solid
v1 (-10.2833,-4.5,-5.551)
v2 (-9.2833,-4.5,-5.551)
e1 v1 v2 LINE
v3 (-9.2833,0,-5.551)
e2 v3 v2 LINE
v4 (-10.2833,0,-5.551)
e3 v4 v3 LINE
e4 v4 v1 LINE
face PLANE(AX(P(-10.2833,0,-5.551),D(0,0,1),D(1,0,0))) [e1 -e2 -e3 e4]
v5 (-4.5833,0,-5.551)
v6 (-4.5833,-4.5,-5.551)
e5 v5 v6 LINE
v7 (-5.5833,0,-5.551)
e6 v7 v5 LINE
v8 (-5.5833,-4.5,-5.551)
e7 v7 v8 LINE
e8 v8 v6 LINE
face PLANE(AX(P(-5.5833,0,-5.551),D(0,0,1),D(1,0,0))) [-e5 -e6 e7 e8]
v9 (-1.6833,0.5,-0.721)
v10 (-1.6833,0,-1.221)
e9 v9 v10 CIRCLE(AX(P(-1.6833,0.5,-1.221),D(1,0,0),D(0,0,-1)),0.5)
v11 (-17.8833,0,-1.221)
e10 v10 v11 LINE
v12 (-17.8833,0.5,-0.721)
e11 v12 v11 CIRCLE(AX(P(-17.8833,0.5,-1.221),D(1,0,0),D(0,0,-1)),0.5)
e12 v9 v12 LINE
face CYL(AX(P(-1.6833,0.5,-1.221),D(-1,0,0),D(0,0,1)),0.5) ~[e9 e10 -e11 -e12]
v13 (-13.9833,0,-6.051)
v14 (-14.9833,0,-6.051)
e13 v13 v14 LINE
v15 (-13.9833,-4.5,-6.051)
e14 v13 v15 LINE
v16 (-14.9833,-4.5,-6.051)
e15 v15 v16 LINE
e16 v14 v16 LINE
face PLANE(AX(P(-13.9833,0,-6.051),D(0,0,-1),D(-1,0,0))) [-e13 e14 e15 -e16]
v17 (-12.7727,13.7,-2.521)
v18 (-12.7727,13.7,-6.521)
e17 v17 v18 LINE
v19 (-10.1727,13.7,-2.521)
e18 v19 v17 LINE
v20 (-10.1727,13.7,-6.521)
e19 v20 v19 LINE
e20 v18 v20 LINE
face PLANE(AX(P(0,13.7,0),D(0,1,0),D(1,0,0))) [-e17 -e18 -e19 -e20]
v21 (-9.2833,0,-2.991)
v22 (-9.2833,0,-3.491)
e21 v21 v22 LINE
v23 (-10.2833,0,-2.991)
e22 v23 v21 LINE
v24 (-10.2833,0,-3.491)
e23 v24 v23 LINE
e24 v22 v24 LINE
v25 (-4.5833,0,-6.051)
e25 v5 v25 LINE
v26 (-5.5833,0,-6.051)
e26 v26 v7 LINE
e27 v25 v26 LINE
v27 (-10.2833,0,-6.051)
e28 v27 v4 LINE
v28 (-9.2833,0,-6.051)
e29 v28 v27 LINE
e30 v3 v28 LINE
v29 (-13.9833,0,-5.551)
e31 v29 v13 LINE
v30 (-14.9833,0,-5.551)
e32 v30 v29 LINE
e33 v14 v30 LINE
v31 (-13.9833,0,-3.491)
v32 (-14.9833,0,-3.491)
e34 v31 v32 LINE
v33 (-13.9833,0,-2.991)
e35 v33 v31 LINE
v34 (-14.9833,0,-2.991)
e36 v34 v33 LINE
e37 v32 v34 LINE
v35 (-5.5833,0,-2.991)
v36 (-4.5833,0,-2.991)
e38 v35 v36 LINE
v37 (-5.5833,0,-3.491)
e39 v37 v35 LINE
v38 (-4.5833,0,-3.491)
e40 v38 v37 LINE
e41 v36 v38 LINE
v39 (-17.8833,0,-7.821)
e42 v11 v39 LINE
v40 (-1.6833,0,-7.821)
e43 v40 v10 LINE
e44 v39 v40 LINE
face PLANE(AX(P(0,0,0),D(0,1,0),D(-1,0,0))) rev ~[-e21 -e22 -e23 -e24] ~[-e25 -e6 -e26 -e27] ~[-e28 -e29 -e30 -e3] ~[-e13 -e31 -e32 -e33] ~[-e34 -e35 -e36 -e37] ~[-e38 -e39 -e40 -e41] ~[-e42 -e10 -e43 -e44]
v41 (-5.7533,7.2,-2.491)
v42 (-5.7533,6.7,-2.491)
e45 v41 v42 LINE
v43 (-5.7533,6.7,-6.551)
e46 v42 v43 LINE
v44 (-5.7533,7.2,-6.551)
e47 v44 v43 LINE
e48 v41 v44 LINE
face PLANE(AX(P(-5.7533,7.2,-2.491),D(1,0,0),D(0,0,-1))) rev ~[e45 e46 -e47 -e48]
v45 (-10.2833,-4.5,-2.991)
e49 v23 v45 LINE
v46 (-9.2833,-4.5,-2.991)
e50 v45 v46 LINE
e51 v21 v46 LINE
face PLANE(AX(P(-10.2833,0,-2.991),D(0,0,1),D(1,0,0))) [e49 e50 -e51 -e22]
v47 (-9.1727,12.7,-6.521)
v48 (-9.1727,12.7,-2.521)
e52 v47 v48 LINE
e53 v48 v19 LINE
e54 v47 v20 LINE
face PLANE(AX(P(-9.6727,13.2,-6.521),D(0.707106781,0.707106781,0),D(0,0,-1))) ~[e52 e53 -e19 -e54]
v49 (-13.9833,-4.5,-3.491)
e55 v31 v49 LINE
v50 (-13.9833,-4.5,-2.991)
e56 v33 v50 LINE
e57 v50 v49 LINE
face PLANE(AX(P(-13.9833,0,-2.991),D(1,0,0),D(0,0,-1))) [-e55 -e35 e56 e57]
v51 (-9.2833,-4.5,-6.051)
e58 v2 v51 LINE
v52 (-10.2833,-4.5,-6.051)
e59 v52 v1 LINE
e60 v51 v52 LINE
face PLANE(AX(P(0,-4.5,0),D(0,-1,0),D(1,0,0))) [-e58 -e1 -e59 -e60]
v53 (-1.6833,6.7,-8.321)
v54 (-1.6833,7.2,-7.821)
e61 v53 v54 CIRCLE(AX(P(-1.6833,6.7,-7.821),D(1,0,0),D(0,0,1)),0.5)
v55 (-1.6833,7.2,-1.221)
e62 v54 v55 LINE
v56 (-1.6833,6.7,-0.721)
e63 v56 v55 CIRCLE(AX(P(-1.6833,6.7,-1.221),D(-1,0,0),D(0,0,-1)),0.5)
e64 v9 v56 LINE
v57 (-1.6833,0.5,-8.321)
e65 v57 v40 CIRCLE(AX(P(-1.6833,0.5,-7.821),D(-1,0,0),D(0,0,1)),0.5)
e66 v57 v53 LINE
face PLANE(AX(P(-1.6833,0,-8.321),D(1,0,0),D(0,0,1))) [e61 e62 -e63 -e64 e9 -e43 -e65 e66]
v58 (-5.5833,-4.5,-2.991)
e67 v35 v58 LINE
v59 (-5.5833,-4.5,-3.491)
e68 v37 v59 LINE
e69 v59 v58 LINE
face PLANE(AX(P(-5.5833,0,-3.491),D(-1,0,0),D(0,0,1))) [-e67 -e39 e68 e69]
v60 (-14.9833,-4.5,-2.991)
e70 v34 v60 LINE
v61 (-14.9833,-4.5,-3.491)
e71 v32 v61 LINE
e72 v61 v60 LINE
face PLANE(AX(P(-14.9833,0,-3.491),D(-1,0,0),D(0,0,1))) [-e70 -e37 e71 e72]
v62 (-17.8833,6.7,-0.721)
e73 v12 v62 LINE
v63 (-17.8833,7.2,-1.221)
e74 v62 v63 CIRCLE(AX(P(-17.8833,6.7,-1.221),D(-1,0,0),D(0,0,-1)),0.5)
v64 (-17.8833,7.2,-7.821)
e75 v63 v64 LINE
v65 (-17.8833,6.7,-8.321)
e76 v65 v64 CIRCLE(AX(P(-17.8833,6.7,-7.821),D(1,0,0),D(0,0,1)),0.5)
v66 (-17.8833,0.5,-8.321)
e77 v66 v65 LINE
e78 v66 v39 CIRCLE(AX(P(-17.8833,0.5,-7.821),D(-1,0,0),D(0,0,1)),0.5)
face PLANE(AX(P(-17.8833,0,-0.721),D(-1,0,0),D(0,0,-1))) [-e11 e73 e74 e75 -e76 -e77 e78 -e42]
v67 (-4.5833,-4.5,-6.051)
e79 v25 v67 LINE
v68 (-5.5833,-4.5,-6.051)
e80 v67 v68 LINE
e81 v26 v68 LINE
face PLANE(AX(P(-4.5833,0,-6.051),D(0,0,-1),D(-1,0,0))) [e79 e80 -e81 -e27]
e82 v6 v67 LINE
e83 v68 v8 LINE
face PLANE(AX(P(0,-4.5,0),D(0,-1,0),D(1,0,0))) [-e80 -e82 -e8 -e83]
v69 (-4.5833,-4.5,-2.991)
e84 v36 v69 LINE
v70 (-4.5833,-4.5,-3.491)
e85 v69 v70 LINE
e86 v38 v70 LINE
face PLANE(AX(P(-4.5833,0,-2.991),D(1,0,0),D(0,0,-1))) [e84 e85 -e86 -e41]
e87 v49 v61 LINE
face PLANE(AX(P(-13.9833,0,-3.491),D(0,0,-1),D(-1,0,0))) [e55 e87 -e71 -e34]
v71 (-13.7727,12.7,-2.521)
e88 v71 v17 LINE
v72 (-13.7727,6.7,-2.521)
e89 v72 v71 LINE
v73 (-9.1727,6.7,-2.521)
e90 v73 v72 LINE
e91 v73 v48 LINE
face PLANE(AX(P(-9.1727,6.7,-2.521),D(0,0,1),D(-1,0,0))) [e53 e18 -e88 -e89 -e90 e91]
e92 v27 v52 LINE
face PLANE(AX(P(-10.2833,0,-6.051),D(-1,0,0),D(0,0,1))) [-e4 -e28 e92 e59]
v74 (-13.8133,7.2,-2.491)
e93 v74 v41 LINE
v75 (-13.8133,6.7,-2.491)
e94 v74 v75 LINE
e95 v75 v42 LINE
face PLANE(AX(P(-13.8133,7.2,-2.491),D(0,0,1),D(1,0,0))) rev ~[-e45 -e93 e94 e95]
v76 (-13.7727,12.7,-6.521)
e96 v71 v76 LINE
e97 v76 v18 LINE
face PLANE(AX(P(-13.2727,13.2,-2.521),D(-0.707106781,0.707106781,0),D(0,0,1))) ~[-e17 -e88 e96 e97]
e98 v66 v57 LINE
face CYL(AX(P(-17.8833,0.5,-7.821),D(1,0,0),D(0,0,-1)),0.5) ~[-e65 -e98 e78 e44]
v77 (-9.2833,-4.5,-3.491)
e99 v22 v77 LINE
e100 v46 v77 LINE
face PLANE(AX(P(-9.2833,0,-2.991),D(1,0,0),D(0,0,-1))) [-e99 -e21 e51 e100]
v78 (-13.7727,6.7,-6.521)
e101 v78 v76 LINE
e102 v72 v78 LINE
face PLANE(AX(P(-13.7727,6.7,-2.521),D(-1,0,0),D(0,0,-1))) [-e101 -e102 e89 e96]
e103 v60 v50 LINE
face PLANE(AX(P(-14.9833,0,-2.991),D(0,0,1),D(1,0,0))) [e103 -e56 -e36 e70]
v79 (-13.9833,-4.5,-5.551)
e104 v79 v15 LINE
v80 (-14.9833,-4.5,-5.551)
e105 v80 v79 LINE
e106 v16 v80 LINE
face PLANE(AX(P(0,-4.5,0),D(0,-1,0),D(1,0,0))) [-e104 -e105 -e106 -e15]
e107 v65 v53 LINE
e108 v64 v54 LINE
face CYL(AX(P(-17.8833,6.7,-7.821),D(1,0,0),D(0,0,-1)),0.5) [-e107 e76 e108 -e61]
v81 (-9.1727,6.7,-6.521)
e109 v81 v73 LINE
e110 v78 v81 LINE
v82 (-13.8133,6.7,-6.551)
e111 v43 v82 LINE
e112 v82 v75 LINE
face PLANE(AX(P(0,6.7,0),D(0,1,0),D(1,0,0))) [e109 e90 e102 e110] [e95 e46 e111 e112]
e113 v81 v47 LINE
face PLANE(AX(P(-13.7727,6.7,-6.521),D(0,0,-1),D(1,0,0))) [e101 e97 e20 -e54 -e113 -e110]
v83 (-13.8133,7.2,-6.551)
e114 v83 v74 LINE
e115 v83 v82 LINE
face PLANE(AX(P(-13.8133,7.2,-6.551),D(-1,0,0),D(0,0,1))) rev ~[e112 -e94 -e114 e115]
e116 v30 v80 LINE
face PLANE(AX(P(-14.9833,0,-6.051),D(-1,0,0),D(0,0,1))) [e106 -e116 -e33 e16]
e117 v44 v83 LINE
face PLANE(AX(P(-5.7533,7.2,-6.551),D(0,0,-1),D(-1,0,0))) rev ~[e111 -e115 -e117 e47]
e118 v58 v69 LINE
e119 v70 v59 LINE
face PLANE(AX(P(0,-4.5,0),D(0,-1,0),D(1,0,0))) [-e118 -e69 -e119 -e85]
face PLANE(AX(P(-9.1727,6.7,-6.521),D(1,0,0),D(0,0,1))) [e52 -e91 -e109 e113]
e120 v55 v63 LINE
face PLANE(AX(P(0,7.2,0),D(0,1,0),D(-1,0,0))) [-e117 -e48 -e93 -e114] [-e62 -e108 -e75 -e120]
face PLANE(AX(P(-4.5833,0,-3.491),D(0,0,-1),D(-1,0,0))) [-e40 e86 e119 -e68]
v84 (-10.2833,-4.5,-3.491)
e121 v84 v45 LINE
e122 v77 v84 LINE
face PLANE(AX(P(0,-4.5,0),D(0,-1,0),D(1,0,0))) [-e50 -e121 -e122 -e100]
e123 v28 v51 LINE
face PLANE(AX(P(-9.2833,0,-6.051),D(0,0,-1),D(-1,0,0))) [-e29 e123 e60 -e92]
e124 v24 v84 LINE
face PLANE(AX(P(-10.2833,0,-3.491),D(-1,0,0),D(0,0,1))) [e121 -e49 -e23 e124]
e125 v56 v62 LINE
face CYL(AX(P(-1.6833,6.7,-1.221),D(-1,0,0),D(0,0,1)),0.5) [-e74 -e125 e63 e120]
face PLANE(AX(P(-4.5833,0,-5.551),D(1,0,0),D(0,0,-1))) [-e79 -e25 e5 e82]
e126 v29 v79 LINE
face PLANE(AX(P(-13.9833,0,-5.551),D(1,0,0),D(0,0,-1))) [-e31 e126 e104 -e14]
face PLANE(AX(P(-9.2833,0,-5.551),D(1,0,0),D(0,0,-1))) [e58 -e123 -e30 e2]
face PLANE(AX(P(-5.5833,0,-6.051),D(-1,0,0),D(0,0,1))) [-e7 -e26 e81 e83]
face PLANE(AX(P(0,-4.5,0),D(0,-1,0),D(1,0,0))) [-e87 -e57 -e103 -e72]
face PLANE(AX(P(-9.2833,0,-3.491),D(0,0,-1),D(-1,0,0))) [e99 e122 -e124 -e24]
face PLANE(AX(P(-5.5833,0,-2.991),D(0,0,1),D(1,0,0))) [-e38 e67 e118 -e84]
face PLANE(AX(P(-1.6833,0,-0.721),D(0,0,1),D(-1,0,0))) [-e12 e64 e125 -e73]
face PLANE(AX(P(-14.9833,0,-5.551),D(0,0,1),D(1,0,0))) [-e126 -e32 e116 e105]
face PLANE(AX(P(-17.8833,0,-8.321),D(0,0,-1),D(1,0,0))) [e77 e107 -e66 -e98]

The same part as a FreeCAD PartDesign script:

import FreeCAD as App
import Part
import Sketcher

V = App.Vector


def edges_at(feature, points):
    """Names of the edges that pass closest to the given points."""
    edges = feature.Shape.Edges
    near = lambda p: min(range(len(edges)), key=lambda i: edges[i].distToShape(Part.Vertex(*p))[0])
    return sorted({f"Edge{near(p) + 1}" for p in points})

doc = App.newDocument("Part")
body = doc.addObject("PartDesign::Body", "Body")

sketch1 = body.newObject("Sketcher::SketchObject", "Sketch")
sketch1.AttachmentSupport = (doc.getObject("XZ_Plane"), [""])
sketch1.MapMode = "FlatFace"
sketch1.addGeometry([
    Part.LineSegment(V(-1.6833, -8.321, 0), V(-17.8833, -8.321, 0)),
    Part.LineSegment(V(-17.8833, -8.321, 0), V(-17.8833, -0.721, 0)),
    Part.LineSegment(V(-17.8833, -0.721, 0), V(-1.6833, -0.721, 0)),
    Part.LineSegment(V(-1.6833, -0.721, 0), V(-1.6833, -8.321, 0)),
], False)
sketch1.addConstraint([
    Sketcher.Constraint("Coincident", 0, 2, 1, 1),
    Sketcher.Constraint("Coincident", 1, 2, 2, 1),
    Sketcher.Constraint("Coincident", 2, 2, 3, 1),
    Sketcher.Constraint("Coincident", 3, 2, 0, 1),
    Sketcher.Constraint("Horizontal", 0),
    Sketcher.Constraint("Vertical", 1),
    Sketcher.Constraint("Horizontal", 2),
    Sketcher.Constraint("Vertical", 3),
    Sketcher.Constraint("DistanceX", 0, 2, 0, 1, 16.2),
    Sketcher.Constraint("DistanceY", 1, 1, 1, 2, 7.6),
    Sketcher.Constraint("DistanceY", 0, 2, -1, 1, 8.321),
    Sketcher.Constraint("DistanceX", 0, 2, -1, 1, 17.8833),
])
pad1 = body.newObject("PartDesign::Pad", "Pad")
pad1.Profile = sketch1
pad1.Length = 7.2
pad1.Reversed = True
doc.recompute()

fillet = body.newObject("PartDesign::Fillet", "Fillet")
fillet.Base = (pad1, edges_at(pad1, [
    (-9.783, 7.2, -0.721),
    (-9.783, 7.2, -8.321),
    (-9.783, 0, -0.721),
    (-9.783, 0, -8.321),
]))
fillet.Radius = 0.5

sketch2 = body.newObject("Sketcher::SketchObject", "Sketch001")
sketch2.AttachmentSupport = (doc.getObject("XZ_Plane"), [""])
sketch2.MapMode = "FlatFace"
sketch2.AttachmentOffset = App.Placement(V(0, 0, -7.2), App.Rotation())
sketch2.addGeometry([
    Part.LineSegment(V(-13.8133, -6.551, 0), V(-13.8133, -2.491, 0)),
    Part.LineSegment(V(-13.8133, -2.491, 0), V(-5.7533, -2.491, 0)),
    Part.LineSegment(V(-5.7533, -2.491, 0), V(-5.7533, -6.551, 0)),
    Part.LineSegment(V(-5.7533, -6.551, 0), V(-13.8133, -6.551, 0)),
], False)
sketch2.addConstraint([
    Sketcher.Constraint("Coincident", 0, 2, 1, 1),
    Sketcher.Constraint("Coincident", 1, 2, 2, 1),
    Sketcher.Constraint("Coincident", 2, 2, 3, 1),
    Sketcher.Constraint("Coincident", 3, 2, 0, 1),
    Sketcher.Constraint("Vertical", 0),
    Sketcher.Constraint("Horizontal", 1),
    Sketcher.Constraint("Vertical", 2),
    Sketcher.Constraint("Horizontal", 3),
    Sketcher.Constraint("DistanceX", 1, 1, 1, 2, 8.06),
    Sketcher.Constraint("DistanceY", 0, 1, 0, 2, 4.06),
    Sketcher.Constraint("DistanceY", 0, 2, -1, 1, 2.491),
    Sketcher.Constraint("DistanceX", 0, 2, -1, 1, 13.8133),
])
pocket1 = body.newObject("PartDesign::Pocket", "Pocket")
pocket1.Profile = sketch2
pocket1.Length = 0.5
pocket1.Reversed = True

sketch3 = body.newObject("Sketcher::SketchObject", "Sketch002")
sketch3.AttachmentSupport = (doc.getObject("XZ_Plane"), [""])
sketch3.MapMode = "FlatFace"
sketch3.AttachmentOffset = App.Placement(V(0, 0, -6.7), App.Rotation())
sketch3.addGeometry([
    Part.LineSegment(V(-9.1727, -6.521, 0), V(-13.7727, -6.521, 0)),
    Part.LineSegment(V(-13.7727, -6.521, 0), V(-13.7727, -2.521, 0)),
    Part.LineSegment(V(-13.7727, -2.521, 0), V(-9.1727, -2.521, 0)),
    Part.LineSegment(V(-9.1727, -2.521, 0), V(-9.1727, -6.521, 0)),
], False)
sketch3.addConstraint([
    Sketcher.Constraint("Coincident", 0, 2, 1, 1),
    Sketcher.Constraint("Coincident", 1, 2, 2, 1),
    Sketcher.Constraint("Coincident", 2, 2, 3, 1),
    Sketcher.Constraint("Coincident", 3, 2, 0, 1),
    Sketcher.Constraint("Horizontal", 0),
    Sketcher.Constraint("Vertical", 1),
    Sketcher.Constraint("Horizontal", 2),
    Sketcher.Constraint("Vertical", 3),
    Sketcher.Constraint("DistanceY", 1, 1, 1, 2, 4.0),
    Sketcher.Constraint("DistanceX", 0, 2, 0, 1, 4.6),
    Sketcher.Constraint("DistanceY", 0, 2, -1, 1, 6.521),
    Sketcher.Constraint("DistanceX", 0, 2, -1, 1, 13.7727),
])
pad2 = body.newObject("PartDesign::Pad", "Pad001")
pad2.Profile = sketch3
pad2.Length = 7
pad2.Reversed = True
doc.recompute()

chamfer = body.newObject("PartDesign::Chamfer", "Chamfer")
chamfer.Base = (pad2, edges_at(pad2, [(-9.173, 13.7, -4.521), (-13.773, 13.7, -4.521)]))
chamfer.Size = 1

sketch4 = body.newObject("Sketcher::SketchObject", "Sketch003")
sketch4.AttachmentSupport = (doc.getObject("XZ_Plane"), [""])
sketch4.MapMode = "FlatFace"
sketch4.addGeometry([
    Part.LineSegment(V(-4.5833, -2.991, 0), V(-5.5833, -2.991, 0)),
    Part.LineSegment(V(-5.5833, -2.991, 0), V(-5.5833, -3.491, 0)),
    Part.LineSegment(V(-5.5833, -3.491, 0), V(-4.5833, -3.491, 0)),
    Part.LineSegment(V(-4.5833, -3.491, 0), V(-4.5833, -2.991, 0)),
    Part.LineSegment(V(-9.2833, -2.991, 0), V(-10.2833, -2.991, 0)),
    Part.LineSegment(V(-10.2833, -2.991, 0), V(-10.2833, -3.491, 0)),
    Part.LineSegment(V(-10.2833, -3.491, 0), V(-9.2833, -3.491, 0)),
    Part.LineSegment(V(-9.2833, -3.491, 0), V(-9.2833, -2.991, 0)),
    Part.LineSegment(V(-13.9833, -2.991, 0), V(-14.9833, -2.991, 0)),
    Part.LineSegment(V(-14.9833, -2.991, 0), V(-14.9833, -3.491, 0)),
    Part.LineSegment(V(-14.9833, -3.491, 0), V(-13.9833, -3.491, 0)),
    Part.LineSegment(V(-13.9833, -3.491, 0), V(-13.9833, -2.991, 0)),
    Part.LineSegment(V(-4.5833, -5.551, 0), V(-5.5833, -5.551, 0)),
    Part.LineSegment(V(-5.5833, -5.551, 0), V(-5.5833, -6.051, 0)),
    Part.LineSegment(V(-5.5833, -6.051, 0), V(-4.5833, -6.051, 0)),
    Part.LineSegment(V(-4.5833, -6.051, 0), V(-4.5833, -5.551, 0)),
    Part.LineSegment(V(-9.2833, -5.551, 0), V(-10.2833, -5.551, 0)),
    Part.LineSegment(V(-10.2833, -5.551, 0), V(-10.2833, -6.051, 0)),
    Part.LineSegment(V(-10.2833, -6.051, 0), V(-9.2833, -6.051, 0)),
    Part.LineSegment(V(-9.2833, -6.051, 0), V(-9.2833, -5.551, 0)),
    Part.LineSegment(V(-13.9833, -5.551, 0), V(-14.9833, -5.551, 0)),
    Part.LineSegment(V(-14.9833, -5.551, 0), V(-14.9833, -6.051, 0)),
    Part.LineSegment(V(-14.9833, -6.051, 0), V(-13.9833, -6.051, 0)),
    Part.LineSegment(V(-13.9833, -6.051, 0), V(-13.9833, -5.551, 0)),
], False)
sketch4.addConstraint([
    Sketcher.Constraint("Coincident", 0, 2, 1, 1),
    Sketcher.Constraint("Coincident", 1, 2, 2, 1),
    Sketcher.Constraint("Coincident", 2, 2, 3, 1),
    Sketcher.Constraint("Coincident", 3, 2, 0, 1),
    Sketcher.Constraint("Coincident", 4, 2, 5, 1),
    Sketcher.Constraint("Coincident", 5, 2, 6, 1),
    Sketcher.Constraint("Coincident", 6, 2, 7, 1),
    Sketcher.Constraint("Coincident", 7, 2, 4, 1),
    Sketcher.Constraint("Coincident", 8, 2, 9, 1),
    Sketcher.Constraint("Coincident", 9, 2, 10, 1),
    Sketcher.Constraint("Coincident", 10, 2, 11, 1),
    Sketcher.Constraint("Coincident", 11, 2, 8, 1),
    Sketcher.Constraint("Coincident", 12, 2, 13, 1),
    Sketcher.Constraint("Coincident", 13, 2, 14, 1),
    Sketcher.Constraint("Coincident", 14, 2, 15, 1),
    Sketcher.Constraint("Coincident", 15, 2, 12, 1),
    Sketcher.Constraint("Coincident", 16, 2, 17, 1),
    Sketcher.Constraint("Coincident", 17, 2, 18, 1),
    Sketcher.Constraint("Coincident", 18, 2, 19, 1),
    Sketcher.Constraint("Coincident", 19, 2, 16, 1),
    Sketcher.Constraint("Coincident", 20, 2, 21, 1),
    Sketcher.Constraint("Coincident", 21, 2, 22, 1),
    Sketcher.Constraint("Coincident", 22, 2, 23, 1),
    Sketcher.Constraint("Coincident", 23, 2, 20, 1),
    Sketcher.Constraint("Horizontal", 0),
    Sketcher.Constraint("Vertical", 1),
    Sketcher.Constraint("Horizontal", 2),
    Sketcher.Constraint("Vertical", 3),
    Sketcher.Constraint("Horizontal", 4),
    Sketcher.Constraint("Vertical", 5),
    Sketcher.Constraint("Horizontal", 6),
    Sketcher.Constraint("Vertical", 7),
    Sketcher.Constraint("Horizontal", 8),
    Sketcher.Constraint("Vertical", 9),
    Sketcher.Constraint("Horizontal", 10),
    Sketcher.Constraint("Vertical", 11),
    Sketcher.Constraint("Horizontal", 12),
    Sketcher.Constraint("Vertical", 13),
    Sketcher.Constraint("Horizontal", 14),
    Sketcher.Constraint("Vertical", 15),
    Sketcher.Constraint("Horizontal", 16),
    Sketcher.Constraint("Vertical", 17),
    Sketcher.Constraint("Horizontal", 18),
    Sketcher.Constraint("Vertical", 19),
    Sketcher.Constraint("Horizontal", 20),
    Sketcher.Constraint("Vertical", 21),
    Sketcher.Constraint("Horizontal", 22),
    Sketcher.Constraint("Vertical", 23),
    Sketcher.Constraint("Horizontal", 3, 2, 4, 2),
    Sketcher.Constraint("Horizontal", 2, 2, 5, 2),
    Sketcher.Constraint("Horizontal", 7, 2, 8, 2),
    Sketcher.Constraint("Horizontal", 6, 2, 9, 2),
    Sketcher.Constraint("Horizontal", 15, 2, 16, 2),
    Sketcher.Constraint("Horizontal", 14, 2, 17, 2),
    Sketcher.Constraint("Horizontal", 19, 2, 20, 2),
    Sketcher.Constraint("Horizontal", 18, 2, 21, 2),
    Sketcher.Constraint("Vertical", 1, 2, 12, 2),
    Sketcher.Constraint("Vertical", 3, 2, 14, 2),
    Sketcher.Constraint("Vertical", 5, 2, 16, 2),
    Sketcher.Constraint("Vertical", 7, 2, 18, 2),
    Sketcher.Constraint("Vertical", 9, 2, 20, 2),
    Sketcher.Constraint("Vertical", 11, 2, 22, 2),
    Sketcher.Constraint("Equal", 2, 4),
    Sketcher.Constraint("Equal", 6, 8),
    Sketcher.Constraint("Equal", 11, 13),
    Sketcher.Constraint("DistanceX", 0, 2, 0, 1, 1.0),
    Sketcher.Constraint("DistanceY", 1, 2, 1, 1, 0.5),
    Sketcher.Constraint("DistanceX", 4, 2, 0, 2, 4.7),
    Sketcher.Constraint("DistanceX", 8, 2, 4, 2, 4.7),
    Sketcher.Constraint("DistanceY", 12, 2, 0, 2, 2.56),
    Sketcher.Constraint("DistanceY", 0, 2, -1, 1, 2.991),
    Sketcher.Constraint("DistanceX", 0, 2, -1, 1, 5.5833),
])
pad3 = body.newObject("PartDesign::Pad", "Pad002")
pad3.Profile = sketch4
pad3.Length = 4.5

doc.recompute()
